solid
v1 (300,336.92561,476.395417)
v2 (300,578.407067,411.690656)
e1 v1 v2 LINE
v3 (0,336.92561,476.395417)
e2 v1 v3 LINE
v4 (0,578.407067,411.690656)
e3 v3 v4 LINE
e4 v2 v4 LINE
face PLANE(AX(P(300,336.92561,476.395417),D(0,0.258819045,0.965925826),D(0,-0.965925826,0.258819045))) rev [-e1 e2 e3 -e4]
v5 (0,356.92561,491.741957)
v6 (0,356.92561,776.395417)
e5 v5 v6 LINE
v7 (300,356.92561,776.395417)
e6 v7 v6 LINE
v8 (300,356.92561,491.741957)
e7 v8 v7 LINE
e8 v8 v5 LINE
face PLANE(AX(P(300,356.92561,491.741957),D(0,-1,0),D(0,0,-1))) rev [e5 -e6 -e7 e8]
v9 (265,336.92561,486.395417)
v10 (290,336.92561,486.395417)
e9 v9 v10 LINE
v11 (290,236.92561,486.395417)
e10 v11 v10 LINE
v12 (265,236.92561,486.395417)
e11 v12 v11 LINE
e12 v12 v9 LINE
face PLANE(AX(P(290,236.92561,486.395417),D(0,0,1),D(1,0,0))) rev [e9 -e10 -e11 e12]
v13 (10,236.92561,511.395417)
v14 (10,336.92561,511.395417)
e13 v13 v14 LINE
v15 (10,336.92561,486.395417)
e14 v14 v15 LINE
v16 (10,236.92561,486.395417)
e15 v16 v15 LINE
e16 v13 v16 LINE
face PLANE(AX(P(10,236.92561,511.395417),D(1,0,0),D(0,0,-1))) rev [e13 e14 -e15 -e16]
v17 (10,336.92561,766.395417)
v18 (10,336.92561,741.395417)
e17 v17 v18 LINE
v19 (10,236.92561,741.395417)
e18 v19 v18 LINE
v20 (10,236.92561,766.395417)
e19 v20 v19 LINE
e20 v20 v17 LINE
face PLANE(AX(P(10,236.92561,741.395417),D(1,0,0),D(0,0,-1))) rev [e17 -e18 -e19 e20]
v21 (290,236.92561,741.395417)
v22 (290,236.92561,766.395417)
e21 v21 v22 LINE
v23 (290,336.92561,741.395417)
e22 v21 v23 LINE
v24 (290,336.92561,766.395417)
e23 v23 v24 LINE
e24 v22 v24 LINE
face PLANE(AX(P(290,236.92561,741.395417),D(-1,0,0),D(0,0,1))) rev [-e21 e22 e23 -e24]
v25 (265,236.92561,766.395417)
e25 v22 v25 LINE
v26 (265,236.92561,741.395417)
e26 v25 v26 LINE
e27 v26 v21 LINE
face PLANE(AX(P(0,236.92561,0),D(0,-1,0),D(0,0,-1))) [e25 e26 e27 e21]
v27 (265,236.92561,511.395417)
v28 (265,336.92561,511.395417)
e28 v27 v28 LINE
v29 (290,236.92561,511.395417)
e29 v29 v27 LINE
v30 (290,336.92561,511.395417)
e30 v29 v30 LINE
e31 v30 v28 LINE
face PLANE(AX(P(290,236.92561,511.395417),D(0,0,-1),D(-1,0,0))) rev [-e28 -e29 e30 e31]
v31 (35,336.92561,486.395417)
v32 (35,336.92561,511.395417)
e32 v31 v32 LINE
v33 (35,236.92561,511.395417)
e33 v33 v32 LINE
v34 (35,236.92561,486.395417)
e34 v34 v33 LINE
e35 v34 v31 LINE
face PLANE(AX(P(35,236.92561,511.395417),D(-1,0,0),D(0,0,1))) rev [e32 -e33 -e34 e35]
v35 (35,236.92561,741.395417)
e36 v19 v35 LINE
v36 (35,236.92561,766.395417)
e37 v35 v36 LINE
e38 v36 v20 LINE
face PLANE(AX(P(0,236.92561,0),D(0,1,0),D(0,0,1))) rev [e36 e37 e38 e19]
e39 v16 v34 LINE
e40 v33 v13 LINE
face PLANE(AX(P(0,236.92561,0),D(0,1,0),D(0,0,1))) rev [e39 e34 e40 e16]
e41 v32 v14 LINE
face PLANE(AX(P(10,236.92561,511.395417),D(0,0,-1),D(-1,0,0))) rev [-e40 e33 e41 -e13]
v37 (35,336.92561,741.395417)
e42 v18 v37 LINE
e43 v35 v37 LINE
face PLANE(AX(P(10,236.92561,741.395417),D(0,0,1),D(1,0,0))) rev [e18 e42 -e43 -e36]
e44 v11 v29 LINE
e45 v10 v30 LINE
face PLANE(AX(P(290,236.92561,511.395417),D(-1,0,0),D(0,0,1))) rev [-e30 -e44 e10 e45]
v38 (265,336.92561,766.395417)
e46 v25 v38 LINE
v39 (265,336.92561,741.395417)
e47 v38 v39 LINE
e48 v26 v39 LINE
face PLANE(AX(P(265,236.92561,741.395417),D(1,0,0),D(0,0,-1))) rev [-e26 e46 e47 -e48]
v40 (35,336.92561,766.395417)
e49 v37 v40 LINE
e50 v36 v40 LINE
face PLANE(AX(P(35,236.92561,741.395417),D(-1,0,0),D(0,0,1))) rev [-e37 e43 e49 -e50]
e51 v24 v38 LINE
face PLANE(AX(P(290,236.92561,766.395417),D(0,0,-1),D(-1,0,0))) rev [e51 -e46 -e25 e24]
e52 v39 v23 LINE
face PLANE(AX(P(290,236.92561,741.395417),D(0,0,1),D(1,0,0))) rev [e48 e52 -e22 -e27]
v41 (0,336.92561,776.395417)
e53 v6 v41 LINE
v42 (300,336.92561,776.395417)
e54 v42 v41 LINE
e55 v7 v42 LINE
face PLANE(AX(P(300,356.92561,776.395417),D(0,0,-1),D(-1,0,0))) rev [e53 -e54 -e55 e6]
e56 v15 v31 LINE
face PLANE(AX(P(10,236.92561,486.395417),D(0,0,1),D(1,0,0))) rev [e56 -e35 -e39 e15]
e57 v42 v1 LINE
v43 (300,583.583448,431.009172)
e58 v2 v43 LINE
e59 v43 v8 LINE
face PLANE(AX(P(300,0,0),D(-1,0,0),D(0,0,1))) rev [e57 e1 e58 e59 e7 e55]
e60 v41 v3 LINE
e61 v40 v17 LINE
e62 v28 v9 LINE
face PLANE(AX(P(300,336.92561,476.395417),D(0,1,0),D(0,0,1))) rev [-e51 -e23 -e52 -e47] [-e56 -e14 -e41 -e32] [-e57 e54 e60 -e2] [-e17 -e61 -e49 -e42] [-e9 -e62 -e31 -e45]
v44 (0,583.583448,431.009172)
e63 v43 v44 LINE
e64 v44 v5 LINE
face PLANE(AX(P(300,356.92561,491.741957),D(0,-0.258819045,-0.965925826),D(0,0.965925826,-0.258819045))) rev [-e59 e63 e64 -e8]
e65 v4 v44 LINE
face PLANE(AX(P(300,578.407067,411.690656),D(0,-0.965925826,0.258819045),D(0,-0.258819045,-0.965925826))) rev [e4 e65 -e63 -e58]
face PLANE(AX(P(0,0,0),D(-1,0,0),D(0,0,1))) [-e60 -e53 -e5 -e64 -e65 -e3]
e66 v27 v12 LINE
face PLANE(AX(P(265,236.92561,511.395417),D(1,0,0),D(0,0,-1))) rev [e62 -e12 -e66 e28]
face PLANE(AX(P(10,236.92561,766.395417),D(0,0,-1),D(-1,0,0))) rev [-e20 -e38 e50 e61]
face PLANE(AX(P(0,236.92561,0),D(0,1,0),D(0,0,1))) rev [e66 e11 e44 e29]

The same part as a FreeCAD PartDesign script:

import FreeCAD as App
import Part
import Sketcher

V = App.Vector
Q = App.Units.Quantity


def add_polygon(sketch, points):
    """Adds a closed chain of lines whose ends are joined by coincident constraints."""
    first, n = sketch.GeometryCount, len(points)
    for a, b in zip(points, points[1:] + points[:1]):
        sketch.addGeometry(Part.LineSegment(App.Vector(*a, 0), App.Vector(*b, 0)), False)
    for i in range(n):
        sketch.addConstraint(Sketcher.Constraint("Coincident", first + i, 2, first + (i + 1) % n, 1))

doc = App.newDocument("Part")
params = doc.addObject("Spreadsheet::Sheet", "Params")
for row, (alias, value) in enumerate([
    ("sketch1_width", "20 mm"),
    ("sketch1_height", "300 mm"),
    ("sketch1_length", "250 mm"),
    ("sketch1_length2", "20 mm"),
    ("pad1_length", "300 mm"),
    ("sketch2_width", "25 mm"),
    ("pad2_length", "100 mm"),
], start=1):
    params.set(f"A{row}", alias)
    params.set(f"B{row}", "=" + value)
    params.setAlias(f"B{row}", alias)

body = doc.addObject("PartDesign::Body", "Body")

sketch1 = doc.addObject("Sketcher::SketchObject", "Sketch")
body.addObject(sketch1)
sketch1.AttachmentSupport = (doc.YZ_Plane, [""])
sketch1.MapMode = "FlatFace"
add_polygon(sketch1, [(337, 476), (578, 412), (584, 431), (357, 492), (357, 776), (337, 776)])
sketch1.addConstraint([
    Sketcher.Constraint("Vertical", 3),
    Sketcher.Constraint("Horizontal", 4),
    Sketcher.Constraint("Vertical", 5),
    Sketcher.Constraint("Perpendicular", 0, 1),
    Sketcher.Constraint("Perpendicular", 1, 2),
    Sketcher.Constraint("DistanceX", 4, 2, 4, 1, Q("20 mm")),
    Sketcher.Constraint("DistanceY", 5, 2, 5, 1, Q("300 mm")),
    Sketcher.Constraint("Angle", 0, Q("-15 deg")),
    Sketcher.Constraint("Distance", 0, Q("250 mm")),
    Sketcher.Constraint("Distance", 1, Q("20 mm")),
    Sketcher.Constraint("DistanceX", -1, 1, 2, 2, Q("356.92561 mm")),
    Sketcher.Constraint("DistanceY", -1, 1, 0, 2, Q("411.690656 mm")),
])
sketch1.setExpression("Constraints[11]", "Params.sketch1_width")
sketch1.setExpression("Constraints[12]", "Params.sketch1_height")
sketch1.setExpression("Constraints[14]", "Params.sketch1_length")
sketch1.setExpression("Constraints[15]", "Params.sketch1_length2")
pad1 = doc.addObject("PartDesign::Pad", "Pad")
body.addObject(pad1)
pad1.Profile = sketch1
pad1.setExpression("Length", "Params.pad1_length")

sketch2 = doc.addObject("Sketcher::SketchObject", "Sketch001")
body.addObject(sketch2)
sketch2.AttachmentSupport = (doc.XZ_Plane, [""])
sketch2.MapMode = "FlatFace"
sketch2.AttachmentOffset = App.Placement(V(0, 0, -336.92561), App.Rotation())
add_polygon(sketch2, [(265, 766), (265, 741), (290, 741), (290, 766)])
add_polygon(sketch2, [(10, 766), (10, 741), (35, 741), (35, 766)])
add_polygon(sketch2, [(265, 511), (265, 486), (290, 486), (290, 511)])
add_polygon(sketch2, [(10, 511), (10, 486), (35, 486), (35, 511)])
sketch2.addConstraint([
    Sketcher.Constraint("Vertical", 0),
    Sketcher.Constraint("Horizontal", 1),
    Sketcher.Constraint("Vertical", 2),
    Sketcher.Constraint("Horizontal", 3),
    Sketcher.Constraint("Vertical", 4),
    Sketcher.Constraint("Horizontal", 5),
    Sketcher.Constraint("Vertical", 6),
    Sketcher.Constraint("Horizontal", 7),
    Sketcher.Constraint("Vertical", 8),
    Sketcher.Constraint("Horizontal", 9),
    Sketcher.Constraint("Vertical", 10),
    Sketcher.Constraint("Horizontal", 11),
    Sketcher.Constraint("Vertical", 12),
    Sketcher.Constraint("Horizontal", 13),
    Sketcher.Constraint("Vertical", 14),
    Sketcher.Constraint("Horizontal", 15),
    Sketcher.Constraint("Horizontal", 1, 2, 4, 2),
    Sketcher.Constraint("Horizontal", 3, 2, 6, 2),
    Sketcher.Constraint("Horizontal", 9, 2, 12, 2),
    Sketcher.Constraint("Horizontal", 11, 2, 14, 2),
    Sketcher.Constraint("Vertical", 3, 2, 8, 2),
    Sketcher.Constraint("Vertical", 2, 2, 9, 2),
    Sketcher.Constraint("Vertical", 7, 2, 12, 2),
    Sketcher.Constraint("Vertical", 6, 2, 13, 2),
    Sketcher.Constraint("Equal", 3, 5),
    Sketcher.Constraint("Equal", 15, 0),
    Sketcher.Constraint("Equal", 6, 8),
    Sketcher.Constraint("DistanceX", 1, 1, 1, 2, Q("25 mm")),
    Sketcher.Constraint("DistanceX", -1, 1, 0, 2, Q("265 mm")),
    Sketcher.Constraint("DistanceX", -1, 1, 4, 2, Q("10 mm")),
    Sketcher.Constraint("DistanceY", 8, 2, 0, 2, Q("255 mm")),
    Sketcher.Constraint("DistanceY", -1, 1, 0, 2, Q("741.395417 mm")),
])
sketch2.setExpression("Constraints[43]", "Params.sketch2_width")
pad2 = doc.addObject("PartDesign::Pad", "Pad001")
body.addObject(pad2)
pad2.Profile = sketch2
pad2.setExpression("Length", "Params.pad2_length")

doc.recompute()
